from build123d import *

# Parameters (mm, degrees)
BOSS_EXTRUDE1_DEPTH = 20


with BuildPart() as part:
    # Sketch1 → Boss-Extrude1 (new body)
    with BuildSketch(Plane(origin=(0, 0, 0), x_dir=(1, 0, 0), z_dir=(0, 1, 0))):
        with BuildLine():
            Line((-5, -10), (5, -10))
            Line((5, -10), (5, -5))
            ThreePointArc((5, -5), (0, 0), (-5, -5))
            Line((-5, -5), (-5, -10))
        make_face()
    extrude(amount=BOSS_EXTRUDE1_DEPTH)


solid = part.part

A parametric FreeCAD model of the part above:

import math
import FreeCAD as App
import Part
import Sketcher

V = App.Vector
Q = App.Units.Quantity

doc = App.newDocument("Part")
body = doc.addObject("PartDesign::Body", "Body")

# Sketch on XZ plane
sketch1 = body.newObject("Sketcher::SketchObject", "Sketch")
sketch1.AttachmentSupport = (doc.getObject("XZ_Plane"), [""])
sketch1.MapMode = "FlatFace"
sketch1.addGeometry([
    Part.LineSegment(V(-5, 10, 0), V(5, 10, 0)),
    Part.LineSegment(V(5, 10, 0), V(5, 5, 0)),
    Part.ArcOfCircle(Part.Circle(V(0, 5, 0), V(0, 0, 1), 5), math.radians(180), math.radians(360)),
    Part.LineSegment(V(-5, 5, 0), V(-5, 10, 0)),
], False)
sketch1.addConstraint([
    Sketcher.Constraint("Coincident", 0, 2, 1, 1),
    Sketcher.Constraint("Tangent", 1, 2, 2, 2),
    Sketcher.Constraint("Tangent", 2, 1, 3, 1),
    Sketcher.Constraint("Coincident", 3, 2, 0, 1),
    Sketcher.Constraint("Horizontal", 0),
    Sketcher.Constraint("Vertical", 1),
    Sketcher.Constraint("Vertical", 3),
    Sketcher.Constraint("PointOnObject", 2, 3, -2),
    Sketcher.Constraint("Radius", 2, Q("5 mm")),
    Sketcher.Constraint("DistanceY", 1, 2, 1, 1, Q("5 mm")),
    Sketcher.Constraint("DistanceY", -1, 1, 2, 3, Q("5 mm")),
])
pad1 = body.newObject("PartDesign::Pad", "Pad")
pad1.Profile = sketch1
pad1.Length = 20
pad1.Reversed = True

doc.recompute()
